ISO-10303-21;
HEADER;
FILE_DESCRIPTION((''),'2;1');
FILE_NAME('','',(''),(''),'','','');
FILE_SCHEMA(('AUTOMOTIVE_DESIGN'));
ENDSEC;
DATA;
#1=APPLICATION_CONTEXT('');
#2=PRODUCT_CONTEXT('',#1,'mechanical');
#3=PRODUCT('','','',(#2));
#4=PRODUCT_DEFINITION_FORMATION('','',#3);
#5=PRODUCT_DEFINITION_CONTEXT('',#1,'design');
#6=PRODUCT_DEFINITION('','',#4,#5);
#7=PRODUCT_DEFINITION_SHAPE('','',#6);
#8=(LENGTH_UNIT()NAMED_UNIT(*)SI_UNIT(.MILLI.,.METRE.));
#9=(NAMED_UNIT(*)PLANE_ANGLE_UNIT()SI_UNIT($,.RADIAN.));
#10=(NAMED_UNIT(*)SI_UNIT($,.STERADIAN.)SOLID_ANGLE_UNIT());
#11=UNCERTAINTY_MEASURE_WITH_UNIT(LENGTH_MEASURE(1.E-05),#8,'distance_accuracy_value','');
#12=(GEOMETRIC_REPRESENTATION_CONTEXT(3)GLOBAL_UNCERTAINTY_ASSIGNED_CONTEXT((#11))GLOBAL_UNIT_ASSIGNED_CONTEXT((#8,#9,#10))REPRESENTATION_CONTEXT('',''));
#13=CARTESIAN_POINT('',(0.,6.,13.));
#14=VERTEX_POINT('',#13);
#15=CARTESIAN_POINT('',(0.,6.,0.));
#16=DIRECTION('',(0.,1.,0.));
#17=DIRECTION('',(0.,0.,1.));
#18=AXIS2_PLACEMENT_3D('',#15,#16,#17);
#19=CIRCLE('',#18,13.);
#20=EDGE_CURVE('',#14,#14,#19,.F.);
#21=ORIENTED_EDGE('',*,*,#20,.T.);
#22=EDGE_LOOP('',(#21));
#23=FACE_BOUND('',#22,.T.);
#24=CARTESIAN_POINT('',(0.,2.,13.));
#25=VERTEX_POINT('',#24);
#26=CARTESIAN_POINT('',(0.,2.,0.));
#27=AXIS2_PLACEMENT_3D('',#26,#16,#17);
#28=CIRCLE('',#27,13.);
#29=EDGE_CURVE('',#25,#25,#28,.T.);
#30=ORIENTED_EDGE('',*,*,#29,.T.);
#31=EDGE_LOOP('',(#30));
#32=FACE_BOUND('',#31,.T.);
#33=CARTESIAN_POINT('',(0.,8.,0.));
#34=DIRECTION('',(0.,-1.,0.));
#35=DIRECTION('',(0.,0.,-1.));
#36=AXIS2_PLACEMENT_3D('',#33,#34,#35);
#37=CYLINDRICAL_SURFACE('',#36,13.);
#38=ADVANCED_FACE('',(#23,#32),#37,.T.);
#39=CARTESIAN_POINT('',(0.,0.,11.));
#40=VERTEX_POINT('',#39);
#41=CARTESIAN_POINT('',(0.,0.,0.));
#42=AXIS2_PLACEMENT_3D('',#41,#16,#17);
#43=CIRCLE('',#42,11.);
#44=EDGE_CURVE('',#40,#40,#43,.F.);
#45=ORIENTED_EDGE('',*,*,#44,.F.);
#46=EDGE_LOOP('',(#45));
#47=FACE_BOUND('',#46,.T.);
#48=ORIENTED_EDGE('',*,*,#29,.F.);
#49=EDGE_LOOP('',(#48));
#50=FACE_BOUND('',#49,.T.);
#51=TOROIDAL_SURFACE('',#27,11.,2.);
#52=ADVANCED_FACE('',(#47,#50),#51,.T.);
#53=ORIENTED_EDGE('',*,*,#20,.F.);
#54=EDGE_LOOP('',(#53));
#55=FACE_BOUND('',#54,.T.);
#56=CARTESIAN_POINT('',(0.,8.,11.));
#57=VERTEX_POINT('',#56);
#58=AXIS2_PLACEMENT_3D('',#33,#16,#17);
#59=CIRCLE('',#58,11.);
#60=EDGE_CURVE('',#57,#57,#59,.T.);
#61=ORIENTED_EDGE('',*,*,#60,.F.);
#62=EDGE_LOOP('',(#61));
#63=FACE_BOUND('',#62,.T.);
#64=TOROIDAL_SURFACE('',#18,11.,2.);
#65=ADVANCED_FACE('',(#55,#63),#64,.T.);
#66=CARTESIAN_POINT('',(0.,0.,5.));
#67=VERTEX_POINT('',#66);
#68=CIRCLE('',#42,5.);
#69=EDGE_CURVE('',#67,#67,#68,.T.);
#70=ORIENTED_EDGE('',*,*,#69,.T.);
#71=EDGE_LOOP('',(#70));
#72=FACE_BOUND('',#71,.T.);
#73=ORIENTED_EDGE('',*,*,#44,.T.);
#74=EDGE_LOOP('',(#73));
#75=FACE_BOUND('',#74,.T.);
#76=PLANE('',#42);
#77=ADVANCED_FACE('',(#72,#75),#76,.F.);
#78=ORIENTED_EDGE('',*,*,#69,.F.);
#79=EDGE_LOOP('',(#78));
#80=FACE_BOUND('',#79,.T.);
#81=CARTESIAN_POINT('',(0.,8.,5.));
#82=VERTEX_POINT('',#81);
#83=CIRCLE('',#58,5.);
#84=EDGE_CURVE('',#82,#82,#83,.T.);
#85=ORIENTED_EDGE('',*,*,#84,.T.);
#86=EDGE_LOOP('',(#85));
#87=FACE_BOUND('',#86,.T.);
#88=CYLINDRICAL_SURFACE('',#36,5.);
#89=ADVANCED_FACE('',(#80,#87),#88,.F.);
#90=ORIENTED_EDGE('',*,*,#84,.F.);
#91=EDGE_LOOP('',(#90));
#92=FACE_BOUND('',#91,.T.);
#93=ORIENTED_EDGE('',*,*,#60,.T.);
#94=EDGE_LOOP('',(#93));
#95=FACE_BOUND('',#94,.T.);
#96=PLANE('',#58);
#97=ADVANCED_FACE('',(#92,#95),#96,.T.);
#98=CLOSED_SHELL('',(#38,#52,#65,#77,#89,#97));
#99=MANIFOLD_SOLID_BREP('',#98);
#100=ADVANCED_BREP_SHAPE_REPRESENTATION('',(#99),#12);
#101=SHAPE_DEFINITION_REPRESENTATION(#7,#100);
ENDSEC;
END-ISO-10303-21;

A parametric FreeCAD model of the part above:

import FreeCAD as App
import Part
import Sketcher

V = App.Vector
Q = App.Units.Quantity


def edges_at(feature, points):
    """Names of the edges that pass closest to the given points."""
    edges = feature.Shape.Edges
    near = lambda p: min(range(len(edges)), key=lambda i: edges[i].distToShape(Part.Vertex(*p))[0])
    return sorted({f"Edge{near(p) + 1}" for p in points})

doc = App.newDocument("Part")
body = doc.addObject("PartDesign::Body", "Body")

# Sketch on XZ plane
sketch1 = doc.addObject("Sketcher::SketchObject", "Sketch")
body.addObject(sketch1)
sketch1.AttachmentSupport = (doc.XZ_Plane, [""])
sketch1.MapMode = "FlatFace"
sketch1.addGeometry([
    Part.Circle(V(0, 0, 0), V(0, 0, 1), 13),
    Part.Circle(V(0, 0, 0), V(0, 0, 1), 5),
], False)
sketch1.addConstraint([
    Sketcher.Constraint("Coincident", 0, 3, -1, 1),
    Sketcher.Constraint("Coincident", 1, 3, -1, 1),
    Sketcher.Constraint("Diameter", 0, Q("26 mm")),
    Sketcher.Constraint("Diameter", 1, Q("10 mm")),
])
pad1 = doc.addObject("PartDesign::Pad", "Pad")
body.addObject(pad1)
pad1.Profile = sketch1
pad1.Length = 8
pad1.Reversed = True
doc.recompute()

fillet = doc.addObject("PartDesign::Fillet", "Fillet")
body.addObject(fillet)
fillet.Base = (pad1, edges_at(pad1, [(0, 0, -13), (0, 8, -13)]))
fillet.Radius = 2

doc.recompute()
